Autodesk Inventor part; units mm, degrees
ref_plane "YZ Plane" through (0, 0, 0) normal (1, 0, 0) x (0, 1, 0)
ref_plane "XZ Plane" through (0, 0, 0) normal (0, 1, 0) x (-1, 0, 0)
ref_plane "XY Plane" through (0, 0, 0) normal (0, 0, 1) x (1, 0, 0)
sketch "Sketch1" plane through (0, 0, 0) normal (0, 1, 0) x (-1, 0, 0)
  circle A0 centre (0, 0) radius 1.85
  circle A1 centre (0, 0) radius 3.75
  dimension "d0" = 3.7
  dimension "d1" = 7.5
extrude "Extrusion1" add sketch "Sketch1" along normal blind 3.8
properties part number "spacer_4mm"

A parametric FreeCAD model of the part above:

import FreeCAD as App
import Part
import Sketcher
from FreeCAD import Vector

doc = App.newDocument("Part")
body = doc.addObject("PartDesign::Body", "Body")

# Sketch on XZ plane
sketch1 = body.newObject("Sketcher::SketchObject", "Sketch")
sketch1.AttachmentSupport = (doc.getObject("XZ_Plane"), [""])
sketch1.MapMode = "FlatFace"
sketch1.addGeometry([
    Part.Circle(Vector(0, 0, 0), Vector(0, 0, 1), 3.8),
    Part.Circle(Vector(0, 0, 0), Vector(0, 0, 1), 1.9),
], False)
sketch1.addConstraint([
    Sketcher.Constraint("Coincident", 0, 3, -1, 1),
    Sketcher.Constraint("Coincident", 1, 3, -1, 1),
    Sketcher.Constraint("Diameter", 0, 7.5),
    Sketcher.Constraint("Diameter", 1, 3.7),
])
pad1 = body.newObject("PartDesign::Pad", "Pad")
pad1.Profile = sketch1
pad1.Length = 3.8
pad1.Reversed = True

doc.recompute()
